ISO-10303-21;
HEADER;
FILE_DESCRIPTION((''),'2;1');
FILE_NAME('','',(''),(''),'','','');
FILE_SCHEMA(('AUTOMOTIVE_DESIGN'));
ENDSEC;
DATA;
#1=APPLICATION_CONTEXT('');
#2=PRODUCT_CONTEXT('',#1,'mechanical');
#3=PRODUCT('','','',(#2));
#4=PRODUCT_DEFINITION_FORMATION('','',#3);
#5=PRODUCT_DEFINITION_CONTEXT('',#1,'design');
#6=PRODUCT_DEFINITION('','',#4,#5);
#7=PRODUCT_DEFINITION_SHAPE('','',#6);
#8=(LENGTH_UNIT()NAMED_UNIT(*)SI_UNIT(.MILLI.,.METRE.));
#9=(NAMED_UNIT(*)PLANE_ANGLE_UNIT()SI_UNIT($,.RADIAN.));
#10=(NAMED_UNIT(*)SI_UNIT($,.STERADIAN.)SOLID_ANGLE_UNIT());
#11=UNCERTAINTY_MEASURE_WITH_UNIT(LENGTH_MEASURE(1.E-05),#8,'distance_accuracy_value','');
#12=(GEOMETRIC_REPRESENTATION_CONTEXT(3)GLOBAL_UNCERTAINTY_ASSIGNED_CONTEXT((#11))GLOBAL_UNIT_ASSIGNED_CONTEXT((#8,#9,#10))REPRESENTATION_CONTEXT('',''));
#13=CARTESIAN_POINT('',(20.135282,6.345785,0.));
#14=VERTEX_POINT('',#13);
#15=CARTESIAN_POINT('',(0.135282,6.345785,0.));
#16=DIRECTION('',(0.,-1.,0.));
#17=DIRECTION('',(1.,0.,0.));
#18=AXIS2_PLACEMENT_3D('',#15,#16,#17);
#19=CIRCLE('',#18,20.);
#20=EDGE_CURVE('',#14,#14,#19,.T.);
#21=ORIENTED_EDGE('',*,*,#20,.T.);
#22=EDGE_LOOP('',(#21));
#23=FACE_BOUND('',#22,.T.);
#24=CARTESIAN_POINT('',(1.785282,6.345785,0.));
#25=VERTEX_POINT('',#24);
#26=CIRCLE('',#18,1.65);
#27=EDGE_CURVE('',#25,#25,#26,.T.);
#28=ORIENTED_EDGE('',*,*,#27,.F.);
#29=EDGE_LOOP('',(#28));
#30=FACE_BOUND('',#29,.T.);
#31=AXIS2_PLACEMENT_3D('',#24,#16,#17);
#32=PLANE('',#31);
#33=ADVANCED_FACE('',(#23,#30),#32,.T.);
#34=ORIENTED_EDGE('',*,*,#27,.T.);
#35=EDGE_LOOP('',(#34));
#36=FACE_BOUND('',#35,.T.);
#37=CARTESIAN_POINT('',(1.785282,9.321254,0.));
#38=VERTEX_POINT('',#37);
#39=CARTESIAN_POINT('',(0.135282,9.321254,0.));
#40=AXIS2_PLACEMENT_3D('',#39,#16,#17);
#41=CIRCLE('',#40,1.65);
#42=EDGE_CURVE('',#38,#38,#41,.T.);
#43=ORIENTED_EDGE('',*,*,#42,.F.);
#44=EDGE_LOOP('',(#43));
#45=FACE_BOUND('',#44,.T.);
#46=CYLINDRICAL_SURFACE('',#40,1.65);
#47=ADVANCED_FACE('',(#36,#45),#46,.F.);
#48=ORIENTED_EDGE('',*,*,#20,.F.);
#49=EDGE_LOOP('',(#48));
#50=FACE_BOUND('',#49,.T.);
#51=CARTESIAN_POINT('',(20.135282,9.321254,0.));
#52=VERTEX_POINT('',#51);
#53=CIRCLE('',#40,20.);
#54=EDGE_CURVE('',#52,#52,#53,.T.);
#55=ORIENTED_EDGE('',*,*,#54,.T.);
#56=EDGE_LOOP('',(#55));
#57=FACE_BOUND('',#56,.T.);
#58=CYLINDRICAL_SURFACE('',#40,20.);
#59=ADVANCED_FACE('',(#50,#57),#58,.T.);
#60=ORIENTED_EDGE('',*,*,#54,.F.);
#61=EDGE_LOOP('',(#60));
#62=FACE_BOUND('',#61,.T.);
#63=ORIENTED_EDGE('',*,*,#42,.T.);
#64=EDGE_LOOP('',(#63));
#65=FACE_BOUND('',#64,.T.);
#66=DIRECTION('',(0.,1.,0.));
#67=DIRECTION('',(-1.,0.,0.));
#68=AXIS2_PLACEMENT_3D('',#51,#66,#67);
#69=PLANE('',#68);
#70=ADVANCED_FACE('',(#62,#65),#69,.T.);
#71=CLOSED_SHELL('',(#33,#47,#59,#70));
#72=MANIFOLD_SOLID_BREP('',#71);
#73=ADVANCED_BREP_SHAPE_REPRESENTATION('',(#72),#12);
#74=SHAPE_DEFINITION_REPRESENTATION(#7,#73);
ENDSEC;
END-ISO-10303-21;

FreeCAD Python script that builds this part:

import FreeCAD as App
import Part
import Sketcher
from FreeCAD import Vector


def add_polygon(sketch, points):
    """Adds a closed chain of lines whose ends are joined by coincident constraints."""
    first, n = sketch.GeometryCount, len(points)
    for a, b in zip(points, points[1:] + points[:1]):
        sketch.addGeometry(Part.LineSegment(App.Vector(*a, 0), App.Vector(*b, 0)), False)
    for i in range(n):
        sketch.addConstraint(Sketcher.Constraint("Coincident", first + i, 2, first + (i + 1) % n, 1))

doc = App.newDocument("Part")
body = doc.addObject("PartDesign::Body", "Body")

# Sketch on XY plane
sketch1 = body.newObject("Sketcher::SketchObject", "Sketch")
sketch1.AttachmentSupport = (doc.getObject("XY_Plane"), [""])
sketch1.MapMode = "FlatFace"
add_polygon(sketch1, [(1.8, 9.3), (1.8, 6.3), (20.1, 6.3), (20.1, 9.3)])  # lines 0-3
sketch1.addGeometry(Part.LineSegment(Vector(0.1, 9.3, 0), Vector(0.1, 6.3, 0)), True)  # axis
sketch1.addConstraint([
    Sketcher.Constraint("Vertical", 0),
    Sketcher.Constraint("Horizontal", 1),
    Sketcher.Constraint("Vertical", 2),
    Sketcher.Constraint("Horizontal", 3),
    Sketcher.Constraint("Vertical", 4),
    Sketcher.Constraint("Horizontal", 3, 2, 4, 1),
    Sketcher.Constraint("Horizontal", 1, 2, 4, 2),
    Sketcher.Constraint("DistanceX", 4, 1, 2, 2, 20.0),
    Sketcher.Constraint("DistanceX", 1, 1, 1, 2, 18.35),
    Sketcher.Constraint("DistanceY", 0, 2, 0, 1, 2.975469),
    Sketcher.Constraint("DistanceX", -1, 1, 0, 2, 1.785282),
    Sketcher.Constraint("DistanceY", -1, 1, 0, 2, 6.345785),
])
revolution = body.newObject("PartDesign::Revolution", "Revolution")
revolution.Profile = sketch1
revolution.ReferenceAxis = (sketch1, ["Axis0"])
revolution.Angle = 360

doc.recompute()
